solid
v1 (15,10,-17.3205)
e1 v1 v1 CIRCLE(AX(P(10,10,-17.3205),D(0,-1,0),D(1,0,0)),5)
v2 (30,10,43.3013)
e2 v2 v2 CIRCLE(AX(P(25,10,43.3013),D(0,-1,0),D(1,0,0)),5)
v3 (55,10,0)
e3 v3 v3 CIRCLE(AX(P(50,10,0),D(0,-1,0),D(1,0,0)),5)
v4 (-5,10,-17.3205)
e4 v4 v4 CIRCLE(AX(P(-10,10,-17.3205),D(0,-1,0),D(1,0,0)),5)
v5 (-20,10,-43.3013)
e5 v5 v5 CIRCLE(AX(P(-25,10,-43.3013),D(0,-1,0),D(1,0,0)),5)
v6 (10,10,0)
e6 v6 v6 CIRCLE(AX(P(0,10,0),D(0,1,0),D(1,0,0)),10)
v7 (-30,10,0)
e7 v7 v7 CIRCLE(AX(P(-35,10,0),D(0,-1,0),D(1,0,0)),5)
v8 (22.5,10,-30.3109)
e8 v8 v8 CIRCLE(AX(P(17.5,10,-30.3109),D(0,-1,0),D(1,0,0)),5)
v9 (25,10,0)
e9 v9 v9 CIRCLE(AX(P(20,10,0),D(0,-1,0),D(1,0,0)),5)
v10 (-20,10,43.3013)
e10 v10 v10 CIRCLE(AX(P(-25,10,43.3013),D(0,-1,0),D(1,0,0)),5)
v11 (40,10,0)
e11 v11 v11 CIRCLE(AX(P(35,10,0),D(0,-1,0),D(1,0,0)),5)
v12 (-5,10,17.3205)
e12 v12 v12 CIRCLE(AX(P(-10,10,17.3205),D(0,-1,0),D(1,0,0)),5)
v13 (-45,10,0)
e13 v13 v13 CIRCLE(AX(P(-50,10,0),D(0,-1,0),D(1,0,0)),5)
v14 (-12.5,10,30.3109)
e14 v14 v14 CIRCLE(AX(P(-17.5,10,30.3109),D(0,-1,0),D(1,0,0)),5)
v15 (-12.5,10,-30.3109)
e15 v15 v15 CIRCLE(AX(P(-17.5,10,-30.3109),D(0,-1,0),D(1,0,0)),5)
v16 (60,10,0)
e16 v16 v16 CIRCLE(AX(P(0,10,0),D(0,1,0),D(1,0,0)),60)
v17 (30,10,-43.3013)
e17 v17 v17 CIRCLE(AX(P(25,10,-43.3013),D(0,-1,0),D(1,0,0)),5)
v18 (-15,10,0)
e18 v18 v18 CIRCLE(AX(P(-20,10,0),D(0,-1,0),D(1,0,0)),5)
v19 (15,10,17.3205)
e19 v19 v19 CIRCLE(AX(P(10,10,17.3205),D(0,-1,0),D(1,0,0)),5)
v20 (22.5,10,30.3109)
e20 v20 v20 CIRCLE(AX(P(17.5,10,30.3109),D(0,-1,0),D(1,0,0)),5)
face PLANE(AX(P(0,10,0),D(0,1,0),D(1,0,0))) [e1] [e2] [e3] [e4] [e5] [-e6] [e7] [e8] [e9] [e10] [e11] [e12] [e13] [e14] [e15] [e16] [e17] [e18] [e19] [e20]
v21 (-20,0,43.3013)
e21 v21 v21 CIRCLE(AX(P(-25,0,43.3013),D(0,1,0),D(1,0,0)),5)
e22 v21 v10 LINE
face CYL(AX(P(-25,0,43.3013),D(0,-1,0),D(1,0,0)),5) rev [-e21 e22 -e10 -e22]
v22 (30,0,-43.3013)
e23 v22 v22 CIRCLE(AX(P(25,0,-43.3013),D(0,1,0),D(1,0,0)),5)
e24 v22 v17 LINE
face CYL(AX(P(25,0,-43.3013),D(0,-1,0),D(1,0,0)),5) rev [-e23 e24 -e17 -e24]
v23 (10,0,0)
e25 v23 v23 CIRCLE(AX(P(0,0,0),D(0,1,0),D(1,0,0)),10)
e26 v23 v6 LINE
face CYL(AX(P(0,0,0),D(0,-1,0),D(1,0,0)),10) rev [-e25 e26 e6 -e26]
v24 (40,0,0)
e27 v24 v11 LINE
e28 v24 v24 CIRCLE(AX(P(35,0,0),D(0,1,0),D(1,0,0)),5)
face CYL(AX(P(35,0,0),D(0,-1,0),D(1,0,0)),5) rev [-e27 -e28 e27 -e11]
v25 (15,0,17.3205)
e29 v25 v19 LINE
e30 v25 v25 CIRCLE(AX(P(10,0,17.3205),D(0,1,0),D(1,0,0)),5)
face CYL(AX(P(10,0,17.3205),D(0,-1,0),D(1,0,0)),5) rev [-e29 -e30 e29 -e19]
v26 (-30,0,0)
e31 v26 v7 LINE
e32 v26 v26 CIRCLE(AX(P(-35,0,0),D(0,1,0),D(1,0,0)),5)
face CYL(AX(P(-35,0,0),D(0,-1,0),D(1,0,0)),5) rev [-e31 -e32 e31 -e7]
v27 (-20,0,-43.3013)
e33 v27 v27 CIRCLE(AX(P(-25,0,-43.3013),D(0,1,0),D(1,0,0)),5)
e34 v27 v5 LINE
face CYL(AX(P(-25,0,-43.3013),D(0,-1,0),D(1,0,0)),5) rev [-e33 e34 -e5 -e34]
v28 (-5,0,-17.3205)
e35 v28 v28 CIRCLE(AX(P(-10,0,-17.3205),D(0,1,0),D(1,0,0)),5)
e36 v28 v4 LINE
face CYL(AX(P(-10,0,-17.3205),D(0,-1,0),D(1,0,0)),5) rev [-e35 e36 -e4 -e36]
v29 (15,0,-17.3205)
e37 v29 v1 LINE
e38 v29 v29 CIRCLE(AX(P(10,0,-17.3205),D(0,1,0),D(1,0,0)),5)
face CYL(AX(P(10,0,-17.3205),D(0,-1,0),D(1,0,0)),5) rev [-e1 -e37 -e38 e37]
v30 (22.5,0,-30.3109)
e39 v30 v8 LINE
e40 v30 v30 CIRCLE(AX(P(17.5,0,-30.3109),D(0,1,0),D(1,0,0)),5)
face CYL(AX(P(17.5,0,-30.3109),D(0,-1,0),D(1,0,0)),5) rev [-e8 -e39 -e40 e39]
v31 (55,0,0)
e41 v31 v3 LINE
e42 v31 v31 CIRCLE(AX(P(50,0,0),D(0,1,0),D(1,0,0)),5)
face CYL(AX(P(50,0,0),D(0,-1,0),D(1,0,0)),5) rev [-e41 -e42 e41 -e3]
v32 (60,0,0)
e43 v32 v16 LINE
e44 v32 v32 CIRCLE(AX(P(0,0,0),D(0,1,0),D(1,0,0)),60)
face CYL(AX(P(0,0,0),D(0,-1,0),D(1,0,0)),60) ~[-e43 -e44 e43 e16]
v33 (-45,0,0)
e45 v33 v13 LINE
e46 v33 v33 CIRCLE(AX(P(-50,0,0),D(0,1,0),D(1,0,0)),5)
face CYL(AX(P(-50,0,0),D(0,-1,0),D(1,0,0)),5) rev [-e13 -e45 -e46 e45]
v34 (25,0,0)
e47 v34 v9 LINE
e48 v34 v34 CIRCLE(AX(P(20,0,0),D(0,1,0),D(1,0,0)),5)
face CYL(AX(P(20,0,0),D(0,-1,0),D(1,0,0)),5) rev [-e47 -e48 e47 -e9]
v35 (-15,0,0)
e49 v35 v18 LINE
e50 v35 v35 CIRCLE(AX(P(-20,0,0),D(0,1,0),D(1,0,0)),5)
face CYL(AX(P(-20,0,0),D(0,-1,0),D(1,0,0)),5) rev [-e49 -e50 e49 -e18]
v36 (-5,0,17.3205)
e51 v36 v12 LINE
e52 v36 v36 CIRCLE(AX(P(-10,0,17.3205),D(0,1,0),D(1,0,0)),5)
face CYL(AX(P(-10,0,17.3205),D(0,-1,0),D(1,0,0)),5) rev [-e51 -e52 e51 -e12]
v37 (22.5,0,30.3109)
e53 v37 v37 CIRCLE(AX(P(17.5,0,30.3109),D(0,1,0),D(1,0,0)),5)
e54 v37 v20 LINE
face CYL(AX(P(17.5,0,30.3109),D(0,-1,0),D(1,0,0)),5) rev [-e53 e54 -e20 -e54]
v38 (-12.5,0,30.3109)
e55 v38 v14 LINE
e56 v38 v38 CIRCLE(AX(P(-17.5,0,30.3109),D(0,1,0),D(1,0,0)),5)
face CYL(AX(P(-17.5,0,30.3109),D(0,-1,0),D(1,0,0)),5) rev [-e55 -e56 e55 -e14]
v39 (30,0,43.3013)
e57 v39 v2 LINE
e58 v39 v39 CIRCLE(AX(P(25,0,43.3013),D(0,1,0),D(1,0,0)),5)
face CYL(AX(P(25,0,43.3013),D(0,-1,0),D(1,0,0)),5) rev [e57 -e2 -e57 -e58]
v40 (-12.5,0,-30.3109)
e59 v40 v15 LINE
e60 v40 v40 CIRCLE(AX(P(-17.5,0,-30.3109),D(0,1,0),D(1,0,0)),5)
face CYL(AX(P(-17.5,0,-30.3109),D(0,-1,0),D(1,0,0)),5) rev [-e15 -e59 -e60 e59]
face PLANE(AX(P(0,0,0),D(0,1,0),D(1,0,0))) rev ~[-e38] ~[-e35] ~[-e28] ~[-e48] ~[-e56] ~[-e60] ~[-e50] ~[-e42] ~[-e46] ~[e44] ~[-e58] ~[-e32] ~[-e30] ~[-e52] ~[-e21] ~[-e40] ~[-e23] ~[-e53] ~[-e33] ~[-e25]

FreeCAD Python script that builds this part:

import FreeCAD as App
import Part
import Sketcher

doc = App.newDocument("Part")
body = doc.addObject("PartDesign::Body", "Body")

# Sketch on XZ plane
sketch1 = body.newObject("Sketcher::SketchObject", "Sketch")
sketch1.AttachmentSupport = (doc.getObject("XZ_Plane"), [""])
sketch1.MapMode = "FlatFace"
sketch1.addGeometry([
    Part.Circle(App.Vector(0, 0, 0), App.Vector(0, 0, 1), 60),  # 0
    Part.Circle(App.Vector(25, -43, 0), App.Vector(0, 0, 1), 5),  # 1
    Part.Circle(App.Vector(-25, -43, 0), App.Vector(0, 0, 1), 5),  # 2
    Part.Circle(App.Vector(-50, 0, 0), App.Vector(0, 0, 1), 5),  # 3
    Part.Circle(App.Vector(-25, 43, 0), App.Vector(0, 0, 1), 5),  # 4
    Part.Circle(App.Vector(25, 43, 0), App.Vector(0, 0, 1), 5),  # 5
    Part.Circle(App.Vector(50, 0, 0), App.Vector(0, 0, 1), 5),  # 6
    Part.Circle(App.Vector(18, 30, 0), App.Vector(0, 0, 1), 5),  # 7
    Part.Circle(App.Vector(35, 0, 0), App.Vector(0, 0, 1), 5),  # 8
    Part.Circle(App.Vector(18, -30, 0), App.Vector(0, 0, 1), 5),  # 9
    Part.Circle(App.Vector(-18, -30, 0), App.Vector(0, 0, 1), 5),  # 10
    Part.Circle(App.Vector(-35, 0, 0), App.Vector(0, 0, 1), 5),  # 11
    Part.Circle(App.Vector(-18, 30, 0), App.Vector(0, 0, 1), 5),  # 12
    Part.Circle(App.Vector(20, 0, 0), App.Vector(0, 0, 1), 5),  # 13
    Part.Circle(App.Vector(10, 17, 0), App.Vector(0, 0, 1), 5),  # 14
    Part.Circle(App.Vector(10, -17, 0), App.Vector(0, 0, 1), 5),  # 15
    Part.Circle(App.Vector(-10, -17, 0), App.Vector(0, 0, 1), 5),  # 16
    Part.Circle(App.Vector(-20, 0, 0), App.Vector(0, 0, 1), 5),  # 17
    Part.Circle(App.Vector(-10, 17, 0), App.Vector(0, 0, 1), 5),  # 18
    Part.Circle(App.Vector(0, 0, 0), App.Vector(0, 0, 1), 10),  # 19
], False)
sketch1.addConstraint([
    Sketcher.Constraint("Coincident", 0, 3, -1, 1),
    Sketcher.Constraint("Coincident", 19, 3, -1, 1),
    Sketcher.Constraint("Equal", 1, 2),
    Sketcher.Constraint("Equal", 2, 3),
    Sketcher.Constraint("Equal", 3, 4),
    Sketcher.Constraint("Equal", 4, 5),
    Sketcher.Constraint("Equal", 5, 6),
    Sketcher.Constraint("Equal", 6, 7),
    Sketcher.Constraint("Equal", 7, 8),
    Sketcher.Constraint("Equal", 8, 9),
    Sketcher.Constraint("Equal", 9, 10),
    Sketcher.Constraint("Equal", 10, 11),
    Sketcher.Constraint("Equal", 11, 12),
    Sketcher.Constraint("Equal", 12, 13),
    Sketcher.Constraint("Equal", 13, 14),
    Sketcher.Constraint("Equal", 14, 15),
    Sketcher.Constraint("Equal", 15, 16),
    Sketcher.Constraint("Equal", 16, 17),
    Sketcher.Constraint("Equal", 17, 18),
    Sketcher.Constraint("Symmetric", 1, 3, 4, 3, -1, 1),
    Sketcher.Constraint("Symmetric", 2, 3, 5, 3, -1, 1),
    Sketcher.Constraint("Symmetric", 3, 3, 6, 3, -1, 1),
    Sketcher.Constraint("Symmetric", 7, 3, 10, 3, -1, 1),
    Sketcher.Constraint("Symmetric", 8, 3, 11, 3, -1, 1),
    Sketcher.Constraint("Symmetric", 9, 3, 12, 3, -1, 1),
    Sketcher.Constraint("Symmetric", 14, 3, 16, 3, -1, 1),
    Sketcher.Constraint("Symmetric", 13, 3, 17, 3, -1, 1),
    Sketcher.Constraint("Symmetric", 15, 3, 18, 3, -1, 1),
    Sketcher.Constraint("Symmetric", 1, 3, 2, 3, -2),
    Sketcher.Constraint("Symmetric", 9, 3, 10, 3, -2),
    Sketcher.Constraint("Symmetric", 15, 3, 16, 3, -2),
    Sketcher.Constraint("PointOnObject", 3, 3, -1),
    Sketcher.Constraint("PointOnObject", 8, 3, -1),
    Sketcher.Constraint("PointOnObject", 13, 3, -1),
    Sketcher.Constraint("Diameter", 0, 120.0),
    Sketcher.Constraint("Diameter", 1, 10.0),
    Sketcher.Constraint("Diameter", 19, 20.0),
    Sketcher.Constraint("DistanceX", -1, 1, 13, 3, 20.0),
    Sketcher.Constraint("DistanceX", -1, 1, 14, 3, 10.0),
    Sketcher.Constraint("DistanceX", 1, 3, 8, 3, 10.0),
    Sketcher.Constraint("DistanceX", -1, 1, 1, 3, 25.0),
    Sketcher.Constraint("DistanceX", 3, 3, -1, 1, 50.0),
    Sketcher.Constraint("DistanceX", 10, 3, 9, 3, 35.0),
    Sketcher.Constraint("DistanceY", -1, 1, 7, 3, 30.311),
    Sketcher.Constraint("DistanceY", 1, 3, -1, 1, 43.3013),
    Sketcher.Constraint("DistanceY", -1, 1, 14, 3, 17.3205),
])
pad1 = body.newObject("PartDesign::Pad", "Pad")
pad1.Profile = sketch1
pad1.Length = 10
pad1.Reversed = True

doc.recompute()
